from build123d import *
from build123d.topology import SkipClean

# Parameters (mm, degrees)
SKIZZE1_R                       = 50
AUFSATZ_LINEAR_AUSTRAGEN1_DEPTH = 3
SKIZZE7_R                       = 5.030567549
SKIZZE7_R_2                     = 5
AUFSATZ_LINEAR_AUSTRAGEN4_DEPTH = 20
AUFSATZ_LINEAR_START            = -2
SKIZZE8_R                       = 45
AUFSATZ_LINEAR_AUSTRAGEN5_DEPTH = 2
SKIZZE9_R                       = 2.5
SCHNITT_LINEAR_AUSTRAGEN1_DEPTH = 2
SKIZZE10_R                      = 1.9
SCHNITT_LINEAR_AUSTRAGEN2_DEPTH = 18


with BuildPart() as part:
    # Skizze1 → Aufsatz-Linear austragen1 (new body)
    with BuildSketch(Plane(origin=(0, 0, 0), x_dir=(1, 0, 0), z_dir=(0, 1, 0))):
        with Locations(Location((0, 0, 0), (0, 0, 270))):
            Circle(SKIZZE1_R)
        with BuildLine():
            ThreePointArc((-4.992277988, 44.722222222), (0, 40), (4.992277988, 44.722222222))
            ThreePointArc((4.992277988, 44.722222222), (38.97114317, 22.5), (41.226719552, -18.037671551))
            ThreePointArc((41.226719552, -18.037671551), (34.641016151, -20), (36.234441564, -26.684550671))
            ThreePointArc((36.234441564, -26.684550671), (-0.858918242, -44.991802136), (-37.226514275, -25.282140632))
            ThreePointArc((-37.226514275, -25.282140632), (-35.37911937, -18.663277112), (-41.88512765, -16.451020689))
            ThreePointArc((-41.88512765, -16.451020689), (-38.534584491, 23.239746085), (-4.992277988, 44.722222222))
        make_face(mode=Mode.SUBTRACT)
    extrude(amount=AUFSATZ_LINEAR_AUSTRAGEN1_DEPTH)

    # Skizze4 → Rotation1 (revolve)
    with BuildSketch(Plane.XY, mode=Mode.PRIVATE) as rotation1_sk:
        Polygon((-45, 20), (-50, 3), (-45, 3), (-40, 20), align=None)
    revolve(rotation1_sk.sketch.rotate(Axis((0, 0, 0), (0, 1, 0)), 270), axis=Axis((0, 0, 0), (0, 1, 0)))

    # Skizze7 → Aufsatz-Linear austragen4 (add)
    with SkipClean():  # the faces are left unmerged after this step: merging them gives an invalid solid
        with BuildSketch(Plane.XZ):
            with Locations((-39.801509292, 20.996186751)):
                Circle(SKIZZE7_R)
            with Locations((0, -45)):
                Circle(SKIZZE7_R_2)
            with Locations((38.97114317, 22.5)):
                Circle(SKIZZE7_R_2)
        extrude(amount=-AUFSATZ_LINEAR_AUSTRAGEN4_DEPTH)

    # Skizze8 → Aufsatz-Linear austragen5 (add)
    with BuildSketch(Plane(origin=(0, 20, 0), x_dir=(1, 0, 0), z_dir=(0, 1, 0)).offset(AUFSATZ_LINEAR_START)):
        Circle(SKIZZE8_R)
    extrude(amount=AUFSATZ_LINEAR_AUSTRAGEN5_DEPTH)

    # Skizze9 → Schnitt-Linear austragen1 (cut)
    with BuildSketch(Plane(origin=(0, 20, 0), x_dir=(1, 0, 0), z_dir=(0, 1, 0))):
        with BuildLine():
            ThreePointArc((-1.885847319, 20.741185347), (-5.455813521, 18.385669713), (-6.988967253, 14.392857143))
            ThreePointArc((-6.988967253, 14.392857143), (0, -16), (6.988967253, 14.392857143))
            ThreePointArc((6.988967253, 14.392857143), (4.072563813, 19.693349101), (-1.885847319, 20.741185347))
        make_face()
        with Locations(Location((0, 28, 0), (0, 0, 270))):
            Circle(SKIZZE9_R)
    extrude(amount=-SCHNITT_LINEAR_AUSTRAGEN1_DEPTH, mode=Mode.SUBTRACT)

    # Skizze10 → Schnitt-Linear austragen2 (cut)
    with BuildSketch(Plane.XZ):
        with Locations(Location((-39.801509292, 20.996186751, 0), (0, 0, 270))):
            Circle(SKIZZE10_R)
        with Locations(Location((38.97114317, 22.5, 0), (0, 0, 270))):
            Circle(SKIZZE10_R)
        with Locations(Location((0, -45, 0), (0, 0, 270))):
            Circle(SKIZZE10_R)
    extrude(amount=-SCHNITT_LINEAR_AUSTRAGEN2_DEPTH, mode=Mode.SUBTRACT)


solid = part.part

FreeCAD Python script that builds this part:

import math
import FreeCAD as App
import Part
import Sketcher
from FreeCAD import Vector
Q = App.Units.Quantity


def add_polygon(sketch, points):
    """Adds a closed chain of lines whose ends are joined by coincident constraints."""
    first, n = sketch.GeometryCount, len(points)
    for a, b in zip(points, points[1:] + points[:1]):
        sketch.addGeometry(Part.LineSegment(App.Vector(*a, 0), App.Vector(*b, 0)), False)
    for i in range(n):
        sketch.addConstraint(Sketcher.Constraint("Coincident", first + i, 2, first + (i + 1) % n, 1))

doc = App.newDocument("Part")
params = doc.addObject("Spreadsheet::Sheet", "Params")
for row, (alias, value) in enumerate([
    ("sketch1_diameter", "100 mm"),
    ("sketch1_radius", "45 mm"),
    ("sketch1_radius2", "5 mm"),
    ("pad1_length", "3 mm"),
    ("sketch2_width", "5 mm"),
    ("revolution_angle", "360 deg"),
    ("sketch3_diameter", "10 mm"),
    ("pad2_length", "20 mm"),
    ("sketch4_diameter", "90 mm"),
    ("pad3_length", "2 mm"),
    ("sketch5_diameter", "5 mm"),
    ("sketch5_radius", "7 mm"),
    ("sketch5_radius2", "16 mm"),
    ("pocket1_length", "2 mm"),
    ("sketch6_diameter", "3.8 mm"),
    ("pocket2_length", "18 mm"),
], start=1):
    params.set(f"A{row}", alias)
    params.set(f"B{row}", "=" + value)
    params.setAlias(f"B{row}", alias)

body = doc.addObject("PartDesign::Body", "Body")

sketch1 = body.newObject("Sketcher::SketchObject", "Sketch")
sketch1.AttachmentSupport = (doc.getObject("XZ_Plane"), [""])
sketch1.MapMode = "FlatFace"
sketch1.addGeometry(Part.Circle(Vector(0, 0, 0), Vector(0, 0, 1), 50), False)
sketch1.addGeometry(Part.ArcOfCircle(Part.Circle(Vector(0, 0, 0), Vector(0, 0, 1), 45), math.radians(159), math.radians(264)), False)
sketch1.addGeometry(Part.ArcOfCircle(Part.Circle(Vector(0, -45, 0), Vector(0, 0, 1), 5), math.radians(3), math.radians(177)), False)
sketch1.addGeometry(Part.ArcOfCircle(Part.Circle(Vector(0, 0, 0), Vector(0, 0, 1), 45), math.radians(-84), math.radians(24)), False)
sketch1.addGeometry(Part.ArcOfCircle(Part.Circle(Vector(39, 22, 0), Vector(0, 0, 1), 5), math.radians(123), math.radians(297)), False)
sketch1.addGeometry(Part.ArcOfCircle(Part.Circle(Vector(0, 0, 0), Vector(0, 0, 1), 45), math.radians(36), math.radians(146)), False)
sketch1.addGeometry(Part.ArcOfCircle(Part.Circle(Vector(-40, 21, 0), Vector(0, 0, 1), 5), math.radians(-115), math.radians(59)), False)
sketch1.addConstraint(Sketcher.Constraint("Coincident", 1, 2, 2, 2))
sketch1.addConstraint(Sketcher.Constraint("Coincident", 2, 1, 3, 1))
sketch1.addConstraint(Sketcher.Constraint("Coincident", 3, 2, 4, 2))
sketch1.addConstraint(Sketcher.Constraint("Coincident", 4, 1, 5, 1))
sketch1.addConstraint(Sketcher.Constraint("Coincident", 5, 2, 6, 2))
sketch1.addConstraint(Sketcher.Constraint("Coincident", 6, 1, 1, 1))
sketch1.addConstraint(Sketcher.Constraint("Coincident", 0, 3, -1, 1))
sketch1.addConstraint(Sketcher.Constraint("Coincident", 1, 3, -1, 1))
sketch1.addConstraint(Sketcher.Constraint("Coincident", 3, 3, -1, 1))
sketch1.addConstraint(Sketcher.Constraint("Coincident", 5, 3, -1, 1))
sketch1.addConstraint(Sketcher.Constraint("Equal", 1, 3))
sketch1.addConstraint(Sketcher.Constraint("Equal", 2, 4))
sketch1.addConstraint(Sketcher.Constraint("Equal", 3, 5))
sketch1.addConstraint(Sketcher.Constraint("Equal", 4, 6))
sketch1.addConstraint(Sketcher.Constraint("PointOnObject", 2, 3, -2))
sketch1.addConstraint(Sketcher.Constraint("Diameter", 0, Q("100 mm")))
sketch1.addConstraint(Sketcher.Constraint("Radius", 1, Q("45 mm")))
sketch1.addConstraint(Sketcher.Constraint("Radius", 2, Q("5 mm")))
sketch1.addConstraint(Sketcher.Constraint("DistanceY", 2, 3, -1, 1, Q("45 mm")))
sketch1.addConstraint(Sketcher.Constraint("DistanceY", -1, 1, 4, 3, Q("22.5 mm")))
sketch1.addConstraint(Sketcher.Constraint("DistanceX", 4, 1, 4, 3, Q("2.736702 mm")))
sketch1.addConstraint(Sketcher.Constraint("DistanceX", 6, 3, -1, 1, Q("39.801509 mm")))
sketch1.addConstraint(Sketcher.Constraint("DistanceY", -1, 1, 5, 2, Q("25.282141 mm")))
sketch1.setExpression("Constraints[15]", "Params.sketch1_diameter")
sketch1.setExpression("Constraints[16]", "Params.sketch1_radius")
sketch1.setExpression("Constraints[17]", "Params.sketch1_radius2")
pad1 = body.newObject("PartDesign::Pad", "Pad")
pad1.Profile = sketch1
pad1.setExpression("Length", "Params.pad1_length")
pad1.Reversed = True

sketch2 = body.newObject("Sketcher::SketchObject", "Sketch001")
sketch2.AttachmentSupport = (doc.getObject("XY_Plane"), [""])
sketch2.MapMode = "FlatFace"
add_polygon(sketch2, [(-45, 20), (-50, 3), (-45, 3), (-40, 20)])
sketch2.addConstraint(Sketcher.Constraint("Horizontal", 1))
sketch2.addConstraint(Sketcher.Constraint("Horizontal", 3))
sketch2.addConstraint(Sketcher.Constraint("Parallel", 0, 2))
sketch2.addConstraint(Sketcher.Constraint("Vertical", 1, 2, 3, 2))
sketch2.addConstraint(Sketcher.Constraint("DistanceX", 1, 1, 1, 2, Q("5 mm")))
sketch2.addConstraint(Sketcher.Constraint("DistanceX", 0, 2, -1, 1, Q("50 mm")))
sketch2.addConstraint(Sketcher.Constraint("DistanceY", -1, 1, 0, 2, Q("3 mm")))
sketch2.addConstraint(Sketcher.Constraint("DistanceY", -1, 1, 2, 2, Q("20 mm")))
sketch2.setExpression("Constraints[8]", "Params.sketch2_width")
revolution = body.newObject("PartDesign::Revolution", "Revolution")
revolution.Profile = sketch2
revolution.ReferenceAxis = (sketch2, ["V_Axis"])
revolution.setExpression("Angle", "Params.revolution_angle")

sketch3 = body.newObject("Sketcher::SketchObject", "Sketch002")
sketch3.AttachmentSupport = (doc.getObject("XZ_Plane"), [""])
sketch3.MapMode = "FlatFace"
sketch3.addGeometry(Part.Circle(Vector(-40, 21, 0), Vector(0, 0, 1), 5), False)
sketch3.addGeometry(Part.Circle(Vector(0, -45, 0), Vector(0, 0, 1), 5), False)
sketch3.addGeometry(Part.Circle(Vector(39, 22, 0), Vector(0, 0, 1), 5), False)
sketch3.addConstraint(Sketcher.Constraint("Equal", 1, 2))
sketch3.addConstraint(Sketcher.Constraint("PointOnObject", 1, 3, -2))
sketch3.addConstraint(Sketcher.Constraint("Diameter", 1, Q("10 mm")))
sketch3.addConstraint(Sketcher.Constraint("DistanceY", 1, 3, -1, 1, Q("45 mm")))
sketch3.addConstraint(Sketcher.Constraint("DistanceY", -1, 1, 2, 3, Q("22.5 mm")))
sketch3.addConstraint(Sketcher.Constraint("Diameter", 0, Q("10.061135 mm")))
sketch3.addConstraint(Sketcher.Constraint("DistanceX", 0, 3, -1, 1, Q("39.801509 mm")))
sketch3.addConstraint(Sketcher.Constraint("DistanceY", -1, 1, 0, 3, Q("20.996187 mm")))
sketch3.addConstraint(Sketcher.Constraint("DistanceX", -1, 1, 2, 3, Q("38.971143 mm")))
sketch3.setExpression("Constraints[2]", "Params.sketch3_diameter")
pad2 = body.newObject("PartDesign::Pad", "Pad001")
pad2.Profile = sketch3
pad2.setExpression("Length", "Params.pad2_length")
pad2.Reversed = True

sketch4 = body.newObject("Sketcher::SketchObject", "Sketch003")
sketch4.AttachmentSupport = (doc.getObject("XZ_Plane"), [""])
sketch4.MapMode = "FlatFace"
sketch4.AttachmentOffset = App.Placement(Vector(0, 0, -18), App.Rotation())
sketch4.addGeometry(Part.Circle(Vector(0, 0, 0), Vector(0, 0, 1), 45), False)
sketch4.addConstraint(Sketcher.Constraint("Coincident", 0, 3, -1, 1))
sketch4.addConstraint(Sketcher.Constraint("Diameter", 0, Q("90 mm")))
sketch4.setExpression("Constraints[1]", "Params.sketch4_diameter")
pad3 = body.newObject("PartDesign::Pad", "Pad002")
pad3.Profile = sketch4
pad3.setExpression("Length", "Params.pad3_length")
pad3.Reversed = True

sketch5 = body.newObject("Sketcher::SketchObject", "Sketch004")
sketch5.AttachmentSupport = (doc.getObject("XZ_Plane"), [""])
sketch5.MapMode = "FlatFace"
sketch5.AttachmentOffset = App.Placement(Vector(0, 0, -20), App.Rotation())
sketch5.addGeometry(Part.ArcOfCircle(Part.Circle(Vector(0, -14, 0), Vector(0, 0, 1), 7), math.radians(-177), math.radians(-106)), False)
sketch5.addGeometry(Part.ArcOfCircle(Part.Circle(Vector(0, 0, 0), Vector(0, 0, 1), 16), math.radians(-64), math.radians(244)), False)
sketch5.addGeometry(Part.ArcOfCircle(Part.Circle(Vector(0, -14, 0), Vector(0, 0, 1), 7), math.radians(-106), math.radians(-3)), False)
sketch5.addGeometry(Part.Circle(Vector(0, -28, 0), Vector(0, 0, 1), 2.5), False)
sketch5.addConstraint(Sketcher.Constraint("Coincident", 0, 1, 1, 2))
sketch5.addConstraint(Sketcher.Constraint("Coincident", 1, 1, 2, 2))
sketch5.addConstraint(Sketcher.Constraint("Tangent", 2, 1, 0, 2))
sketch5.addConstraint(Sketcher.Constraint("Coincident", 1, 3, -1, 1))
sketch5.addConstraint(Sketcher.Constraint("Equal", 0, 2))
sketch5.addConstraint(Sketcher.Constraint("PointOnObject", 0, 3, -2))
sketch5.addConstraint(Sketcher.Constraint("PointOnObject", 3, 3, -2))
sketch5.addConstraint(Sketcher.Constraint("Diameter", 3, Q("5 mm")))
sketch5.addConstraint(Sketcher.Constraint("Radius", 0, Q("7 mm")))
sketch5.addConstraint(Sketcher.Constraint("Radius", 1, Q("16 mm")))
sketch5.addConstraint(Sketcher.Constraint("DistanceY", 0, 3, -1, 1, Q("14 mm")))
sketch5.addConstraint(Sketcher.Constraint("DistanceY", 3, 3, -1, 1, Q("28 mm")))
sketch5.addConstraint(Sketcher.Constraint("DistanceX", 0, 1, 2, 1, Q("5.10312 mm")))
sketch5.setExpression("Constraints[7]", "Params.sketch5_diameter")
sketch5.setExpression("Constraints[8]", "Params.sketch5_radius")
sketch5.setExpression("Constraints[9]", "Params.sketch5_radius2")
pocket1 = body.newObject("PartDesign::Pocket", "Pocket")
pocket1.Profile = sketch5
pocket1.setExpression("Length", "Params.pocket1_length")
pocket1.Reversed = True

sketch6 = body.newObject("Sketcher::SketchObject", "Sketch005")
sketch6.AttachmentSupport = (doc.getObject("XZ_Plane"), [""])
sketch6.MapMode = "FlatFace"
sketch6.addGeometry(Part.Circle(Vector(-39.8, 21, 0), Vector(0, 0, 1), 1.9), False)
sketch6.addGeometry(Part.Circle(Vector(39, 22.5, 0), Vector(0, 0, 1), 1.9), False)
sketch6.addGeometry(Part.Circle(Vector(0, -45, 0), Vector(0, 0, 1), 1.9), False)
sketch6.addConstraint(Sketcher.Constraint("Equal", 0, 1))
sketch6.addConstraint(Sketcher.Constraint("Equal", 1, 2))
sketch6.addConstraint(Sketcher.Constraint("PointOnObject", 2, 3, -2))
sketch6.addConstraint(Sketcher.Constraint("Diameter", 0, Q("3.8 mm")))
sketch6.addConstraint(Sketcher.Constraint("DistanceY", 2, 3, -1, 1, Q("45 mm")))
sketch6.addConstraint(Sketcher.Constraint("DistanceY", -1, 1, 1, 3, Q("22.5 mm")))
sketch6.addConstraint(Sketcher.Constraint("DistanceX", 0, 3, -1, 1, Q("39.801509 mm")))
sketch6.addConstraint(Sketcher.Constraint("DistanceY", -1, 1, 0, 3, Q("20.996187 mm")))
sketch6.addConstraint(Sketcher.Constraint("DistanceX", -1, 1, 1, 3, Q("38.971143 mm")))
sketch6.setExpression("Constraints[3]", "Params.sketch6_diameter")
pocket2 = body.newObject("PartDesign::Pocket", "Pocket001")
pocket2.Profile = sketch6
pocket2.setExpression("Length", "Params.pocket2_length")

doc.recompute()
